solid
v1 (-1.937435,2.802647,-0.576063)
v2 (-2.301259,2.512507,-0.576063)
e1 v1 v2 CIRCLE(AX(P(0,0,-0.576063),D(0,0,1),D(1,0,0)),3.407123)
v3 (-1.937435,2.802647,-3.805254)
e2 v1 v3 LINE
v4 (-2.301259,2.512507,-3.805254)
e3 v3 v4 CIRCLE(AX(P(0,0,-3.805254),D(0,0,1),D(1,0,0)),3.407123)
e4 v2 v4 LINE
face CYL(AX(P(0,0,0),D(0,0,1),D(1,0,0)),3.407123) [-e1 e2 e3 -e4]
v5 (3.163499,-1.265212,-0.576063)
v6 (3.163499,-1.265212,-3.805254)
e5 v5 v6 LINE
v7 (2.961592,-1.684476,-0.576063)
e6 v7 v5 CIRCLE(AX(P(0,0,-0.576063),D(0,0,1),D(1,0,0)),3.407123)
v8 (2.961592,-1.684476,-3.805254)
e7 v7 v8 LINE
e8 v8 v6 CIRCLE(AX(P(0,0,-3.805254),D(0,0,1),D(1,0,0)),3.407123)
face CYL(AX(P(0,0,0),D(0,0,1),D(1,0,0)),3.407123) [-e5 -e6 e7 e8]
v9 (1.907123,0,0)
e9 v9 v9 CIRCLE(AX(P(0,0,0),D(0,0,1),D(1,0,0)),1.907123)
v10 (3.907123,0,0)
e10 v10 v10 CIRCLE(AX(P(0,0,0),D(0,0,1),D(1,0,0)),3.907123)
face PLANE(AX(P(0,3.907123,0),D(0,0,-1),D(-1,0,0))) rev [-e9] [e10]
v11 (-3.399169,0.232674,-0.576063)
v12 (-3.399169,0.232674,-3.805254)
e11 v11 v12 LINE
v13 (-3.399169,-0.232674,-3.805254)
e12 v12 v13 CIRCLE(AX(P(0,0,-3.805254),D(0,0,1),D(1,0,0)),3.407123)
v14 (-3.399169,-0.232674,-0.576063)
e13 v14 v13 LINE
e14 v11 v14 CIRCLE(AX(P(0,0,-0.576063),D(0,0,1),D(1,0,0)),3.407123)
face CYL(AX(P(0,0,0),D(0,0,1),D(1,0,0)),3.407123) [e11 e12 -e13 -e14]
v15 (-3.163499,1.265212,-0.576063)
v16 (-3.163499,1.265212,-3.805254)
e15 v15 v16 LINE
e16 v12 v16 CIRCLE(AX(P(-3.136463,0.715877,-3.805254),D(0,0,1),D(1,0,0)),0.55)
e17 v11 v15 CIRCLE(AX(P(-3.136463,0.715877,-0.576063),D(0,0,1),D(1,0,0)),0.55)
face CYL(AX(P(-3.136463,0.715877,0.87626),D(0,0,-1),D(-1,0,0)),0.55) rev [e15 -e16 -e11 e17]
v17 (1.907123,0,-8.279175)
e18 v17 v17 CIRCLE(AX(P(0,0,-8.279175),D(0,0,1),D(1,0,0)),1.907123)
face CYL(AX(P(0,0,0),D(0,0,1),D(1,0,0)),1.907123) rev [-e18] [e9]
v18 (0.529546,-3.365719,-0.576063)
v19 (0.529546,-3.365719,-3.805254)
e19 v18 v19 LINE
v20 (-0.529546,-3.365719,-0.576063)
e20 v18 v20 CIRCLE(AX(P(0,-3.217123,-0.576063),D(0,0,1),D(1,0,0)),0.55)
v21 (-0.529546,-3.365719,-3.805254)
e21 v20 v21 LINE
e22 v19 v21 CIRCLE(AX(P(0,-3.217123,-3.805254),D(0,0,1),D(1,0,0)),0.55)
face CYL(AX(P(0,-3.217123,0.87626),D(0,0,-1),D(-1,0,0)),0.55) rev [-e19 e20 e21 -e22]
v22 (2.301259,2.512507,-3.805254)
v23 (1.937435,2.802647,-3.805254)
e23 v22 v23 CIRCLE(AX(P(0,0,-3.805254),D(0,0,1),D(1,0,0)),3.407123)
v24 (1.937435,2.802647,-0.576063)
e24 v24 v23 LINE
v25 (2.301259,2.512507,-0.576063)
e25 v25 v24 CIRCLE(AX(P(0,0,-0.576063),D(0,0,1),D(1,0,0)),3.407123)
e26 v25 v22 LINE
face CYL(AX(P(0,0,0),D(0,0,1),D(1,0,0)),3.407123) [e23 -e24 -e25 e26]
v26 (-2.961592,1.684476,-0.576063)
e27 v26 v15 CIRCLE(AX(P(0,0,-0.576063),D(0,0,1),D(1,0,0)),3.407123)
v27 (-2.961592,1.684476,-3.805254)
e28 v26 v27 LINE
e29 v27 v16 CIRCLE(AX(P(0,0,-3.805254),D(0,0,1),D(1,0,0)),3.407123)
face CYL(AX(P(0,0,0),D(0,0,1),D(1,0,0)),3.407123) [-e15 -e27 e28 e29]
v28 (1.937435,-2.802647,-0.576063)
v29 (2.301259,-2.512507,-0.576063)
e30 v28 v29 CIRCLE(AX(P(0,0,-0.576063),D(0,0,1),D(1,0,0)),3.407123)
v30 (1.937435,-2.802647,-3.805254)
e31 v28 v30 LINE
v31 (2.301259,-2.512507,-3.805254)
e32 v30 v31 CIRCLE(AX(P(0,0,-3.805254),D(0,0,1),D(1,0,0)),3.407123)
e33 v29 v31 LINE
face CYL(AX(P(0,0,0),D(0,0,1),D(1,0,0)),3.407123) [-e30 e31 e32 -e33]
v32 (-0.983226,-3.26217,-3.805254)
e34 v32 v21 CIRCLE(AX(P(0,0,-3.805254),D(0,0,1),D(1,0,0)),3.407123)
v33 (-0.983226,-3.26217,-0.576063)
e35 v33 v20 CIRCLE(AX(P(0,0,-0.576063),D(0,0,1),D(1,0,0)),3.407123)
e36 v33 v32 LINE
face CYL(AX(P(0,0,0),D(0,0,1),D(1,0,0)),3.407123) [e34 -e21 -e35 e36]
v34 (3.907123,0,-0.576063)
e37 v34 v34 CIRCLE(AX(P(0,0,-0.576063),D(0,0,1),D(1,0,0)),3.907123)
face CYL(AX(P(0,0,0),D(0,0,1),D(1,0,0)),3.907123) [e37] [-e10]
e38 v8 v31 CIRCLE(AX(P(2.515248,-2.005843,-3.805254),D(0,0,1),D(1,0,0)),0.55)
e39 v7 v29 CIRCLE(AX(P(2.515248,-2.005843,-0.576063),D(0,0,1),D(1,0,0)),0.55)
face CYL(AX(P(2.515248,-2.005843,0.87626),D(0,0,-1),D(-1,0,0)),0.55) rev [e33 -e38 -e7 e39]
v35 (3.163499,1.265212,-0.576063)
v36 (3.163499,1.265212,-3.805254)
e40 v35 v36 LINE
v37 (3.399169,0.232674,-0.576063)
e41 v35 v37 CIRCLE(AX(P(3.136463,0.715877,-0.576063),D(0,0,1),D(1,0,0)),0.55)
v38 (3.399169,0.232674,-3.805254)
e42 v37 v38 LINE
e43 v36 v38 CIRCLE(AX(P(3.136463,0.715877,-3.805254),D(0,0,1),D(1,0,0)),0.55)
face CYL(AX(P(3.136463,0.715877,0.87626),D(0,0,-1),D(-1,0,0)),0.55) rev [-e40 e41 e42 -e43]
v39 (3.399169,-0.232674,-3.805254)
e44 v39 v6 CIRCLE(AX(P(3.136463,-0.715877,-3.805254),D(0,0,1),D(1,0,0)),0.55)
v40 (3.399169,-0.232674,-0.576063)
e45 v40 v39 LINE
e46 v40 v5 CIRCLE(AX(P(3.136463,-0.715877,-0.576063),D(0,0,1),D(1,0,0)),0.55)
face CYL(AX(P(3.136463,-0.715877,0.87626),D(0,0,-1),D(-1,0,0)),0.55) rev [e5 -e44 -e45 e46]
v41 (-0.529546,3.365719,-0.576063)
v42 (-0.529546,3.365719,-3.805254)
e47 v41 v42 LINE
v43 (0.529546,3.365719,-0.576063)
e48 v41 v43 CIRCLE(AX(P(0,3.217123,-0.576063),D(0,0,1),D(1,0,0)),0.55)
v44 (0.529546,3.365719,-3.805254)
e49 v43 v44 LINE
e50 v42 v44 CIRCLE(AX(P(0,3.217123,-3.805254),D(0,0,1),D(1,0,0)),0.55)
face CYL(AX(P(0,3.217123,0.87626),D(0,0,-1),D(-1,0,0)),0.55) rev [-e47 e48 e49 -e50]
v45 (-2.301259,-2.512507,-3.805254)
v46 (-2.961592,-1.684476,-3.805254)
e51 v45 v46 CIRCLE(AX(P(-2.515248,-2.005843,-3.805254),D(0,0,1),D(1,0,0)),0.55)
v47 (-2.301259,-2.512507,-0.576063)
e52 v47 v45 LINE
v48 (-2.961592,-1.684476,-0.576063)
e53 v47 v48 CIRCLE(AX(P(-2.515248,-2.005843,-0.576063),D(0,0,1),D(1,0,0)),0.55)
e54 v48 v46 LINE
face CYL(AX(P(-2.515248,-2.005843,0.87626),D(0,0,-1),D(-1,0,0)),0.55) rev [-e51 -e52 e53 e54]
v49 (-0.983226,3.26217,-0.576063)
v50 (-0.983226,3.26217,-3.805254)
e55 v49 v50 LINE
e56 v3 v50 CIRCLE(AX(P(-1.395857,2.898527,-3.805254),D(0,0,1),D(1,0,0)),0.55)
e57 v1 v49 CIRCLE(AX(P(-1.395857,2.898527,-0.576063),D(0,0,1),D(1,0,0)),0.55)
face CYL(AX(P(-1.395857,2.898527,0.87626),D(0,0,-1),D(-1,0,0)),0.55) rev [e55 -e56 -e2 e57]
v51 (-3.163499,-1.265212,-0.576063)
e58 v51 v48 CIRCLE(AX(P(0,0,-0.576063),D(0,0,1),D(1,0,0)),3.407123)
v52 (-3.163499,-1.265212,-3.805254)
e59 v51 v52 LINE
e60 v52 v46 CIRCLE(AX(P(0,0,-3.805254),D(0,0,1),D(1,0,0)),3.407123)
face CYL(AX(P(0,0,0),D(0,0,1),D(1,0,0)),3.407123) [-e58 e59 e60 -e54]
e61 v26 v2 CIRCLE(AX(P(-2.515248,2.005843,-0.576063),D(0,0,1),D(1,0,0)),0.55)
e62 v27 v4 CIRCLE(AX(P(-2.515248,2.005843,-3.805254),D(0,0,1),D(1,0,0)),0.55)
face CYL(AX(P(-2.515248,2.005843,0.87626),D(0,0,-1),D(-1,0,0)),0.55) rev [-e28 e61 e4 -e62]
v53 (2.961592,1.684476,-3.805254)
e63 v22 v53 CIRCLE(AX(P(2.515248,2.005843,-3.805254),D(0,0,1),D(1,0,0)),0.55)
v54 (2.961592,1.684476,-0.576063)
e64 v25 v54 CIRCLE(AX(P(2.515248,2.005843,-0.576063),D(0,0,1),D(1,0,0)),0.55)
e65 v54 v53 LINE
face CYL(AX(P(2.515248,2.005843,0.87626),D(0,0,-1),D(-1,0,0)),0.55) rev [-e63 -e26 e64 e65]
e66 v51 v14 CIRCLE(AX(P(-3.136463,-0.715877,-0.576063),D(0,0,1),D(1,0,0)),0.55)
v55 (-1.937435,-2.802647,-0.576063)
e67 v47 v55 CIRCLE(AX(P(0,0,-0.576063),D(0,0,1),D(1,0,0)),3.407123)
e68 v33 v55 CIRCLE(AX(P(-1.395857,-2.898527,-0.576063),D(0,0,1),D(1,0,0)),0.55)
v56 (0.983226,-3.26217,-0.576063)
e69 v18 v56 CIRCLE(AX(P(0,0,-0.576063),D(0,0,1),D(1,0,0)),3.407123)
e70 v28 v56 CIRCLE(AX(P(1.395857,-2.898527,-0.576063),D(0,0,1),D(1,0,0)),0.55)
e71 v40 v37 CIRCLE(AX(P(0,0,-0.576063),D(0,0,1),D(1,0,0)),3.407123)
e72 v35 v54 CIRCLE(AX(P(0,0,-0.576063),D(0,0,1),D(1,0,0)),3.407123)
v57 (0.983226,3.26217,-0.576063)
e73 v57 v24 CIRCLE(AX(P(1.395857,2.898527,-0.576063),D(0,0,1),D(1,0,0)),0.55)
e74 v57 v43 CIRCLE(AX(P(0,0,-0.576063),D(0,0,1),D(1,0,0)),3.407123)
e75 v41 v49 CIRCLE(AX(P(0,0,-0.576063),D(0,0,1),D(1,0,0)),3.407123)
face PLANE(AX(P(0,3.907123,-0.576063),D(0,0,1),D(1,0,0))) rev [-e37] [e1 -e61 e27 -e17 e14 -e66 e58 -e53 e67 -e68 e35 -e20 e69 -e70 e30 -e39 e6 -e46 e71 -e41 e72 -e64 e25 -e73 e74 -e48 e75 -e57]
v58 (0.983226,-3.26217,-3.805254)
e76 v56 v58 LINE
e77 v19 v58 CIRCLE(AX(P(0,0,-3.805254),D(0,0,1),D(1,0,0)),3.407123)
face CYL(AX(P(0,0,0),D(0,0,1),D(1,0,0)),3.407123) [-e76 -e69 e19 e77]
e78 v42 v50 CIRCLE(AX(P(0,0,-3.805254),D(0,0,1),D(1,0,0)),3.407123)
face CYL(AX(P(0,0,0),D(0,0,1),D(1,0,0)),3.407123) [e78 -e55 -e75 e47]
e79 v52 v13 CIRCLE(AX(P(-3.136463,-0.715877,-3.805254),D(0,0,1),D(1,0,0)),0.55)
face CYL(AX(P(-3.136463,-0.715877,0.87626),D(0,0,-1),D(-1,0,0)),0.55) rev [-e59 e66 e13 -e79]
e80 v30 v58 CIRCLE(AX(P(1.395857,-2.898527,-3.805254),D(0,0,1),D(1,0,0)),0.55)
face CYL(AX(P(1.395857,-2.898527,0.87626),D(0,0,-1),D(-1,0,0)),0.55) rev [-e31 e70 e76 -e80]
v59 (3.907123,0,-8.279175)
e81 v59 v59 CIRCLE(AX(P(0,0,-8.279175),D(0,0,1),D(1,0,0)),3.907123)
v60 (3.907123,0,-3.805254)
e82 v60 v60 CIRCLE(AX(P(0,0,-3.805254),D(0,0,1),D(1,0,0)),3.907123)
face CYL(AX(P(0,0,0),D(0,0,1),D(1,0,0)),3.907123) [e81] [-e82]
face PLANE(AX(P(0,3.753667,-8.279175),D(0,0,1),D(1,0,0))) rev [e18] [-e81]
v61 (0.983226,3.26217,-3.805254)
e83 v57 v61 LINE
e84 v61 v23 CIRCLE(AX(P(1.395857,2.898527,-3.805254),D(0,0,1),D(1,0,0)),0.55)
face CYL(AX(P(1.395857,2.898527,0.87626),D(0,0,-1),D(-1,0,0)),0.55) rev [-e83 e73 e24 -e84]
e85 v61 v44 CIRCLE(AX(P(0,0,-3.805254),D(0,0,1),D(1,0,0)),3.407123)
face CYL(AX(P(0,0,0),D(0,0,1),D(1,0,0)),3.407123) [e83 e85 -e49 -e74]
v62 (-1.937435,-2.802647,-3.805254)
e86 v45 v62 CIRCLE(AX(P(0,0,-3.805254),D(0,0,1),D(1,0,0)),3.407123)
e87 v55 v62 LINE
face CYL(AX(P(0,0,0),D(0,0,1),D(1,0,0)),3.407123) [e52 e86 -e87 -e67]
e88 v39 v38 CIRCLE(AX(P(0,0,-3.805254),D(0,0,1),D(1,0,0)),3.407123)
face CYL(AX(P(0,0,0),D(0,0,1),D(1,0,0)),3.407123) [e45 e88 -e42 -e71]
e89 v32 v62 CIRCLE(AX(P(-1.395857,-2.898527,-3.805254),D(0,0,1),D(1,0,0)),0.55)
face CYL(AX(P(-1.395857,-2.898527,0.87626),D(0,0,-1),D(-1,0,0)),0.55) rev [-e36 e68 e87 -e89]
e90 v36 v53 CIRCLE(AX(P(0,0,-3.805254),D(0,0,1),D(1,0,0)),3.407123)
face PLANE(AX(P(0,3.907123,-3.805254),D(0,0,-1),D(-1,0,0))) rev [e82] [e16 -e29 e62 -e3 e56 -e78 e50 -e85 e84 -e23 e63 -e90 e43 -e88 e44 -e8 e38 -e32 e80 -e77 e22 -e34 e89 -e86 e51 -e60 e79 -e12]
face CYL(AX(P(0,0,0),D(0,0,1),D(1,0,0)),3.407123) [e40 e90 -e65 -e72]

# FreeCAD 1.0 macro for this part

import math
import FreeCAD as App
import Part
import Sketcher
from FreeCAD import Vector
Q = App.Units.Quantity

doc = App.newDocument("Part")
body = doc.addObject("PartDesign::Body", "Body")

sketch1 = body.newObject("Sketcher::SketchObject", "Sketch")
sketch1.AttachmentSupport = (doc.getObject("YZ_Plane"), [""])
sketch1.MapMode = "FlatFace"
sketch1.addGeometry([
    Part.LineSegment(Vector(3.9, -3.8, 0), Vector(3.4, -3.8, 0)),
    Part.LineSegment(Vector(3.4, -3.8, 0), Vector(3.4, -0.6, 0)),
    Part.LineSegment(Vector(3.4, -0.6, 0), Vector(3.9, -0.6, 0)),
    Part.LineSegment(Vector(3.9, -0.6, 0), Vector(3.9, 0, 0)),
    Part.LineSegment(Vector(3.9, 0, 0), Vector(1.9, 0, 0)),
    Part.LineSegment(Vector(1.9, 0, 0), Vector(1.9, -8.3, 0)),
    Part.LineSegment(Vector(1.9, -8.3, 0), Vector(3.9, -8.3, 0)),
    Part.LineSegment(Vector(3.9, -8.3, 0), Vector(3.9, -3.8, 0)),
], False)
sketch1.addConstraint([
    Sketcher.Constraint("Coincident", 0, 2, 1, 1),
    Sketcher.Constraint("Coincident", 1, 2, 2, 1),
    Sketcher.Constraint("Coincident", 2, 2, 3, 1),
    Sketcher.Constraint("Coincident", 3, 2, 4, 1),
    Sketcher.Constraint("Coincident", 4, 2, 5, 1),
    Sketcher.Constraint("Coincident", 5, 2, 6, 1),
    Sketcher.Constraint("Coincident", 6, 2, 7, 1),
    Sketcher.Constraint("Coincident", 7, 2, 0, 1),
    Sketcher.Constraint("Horizontal", 0),
    Sketcher.Constraint("Vertical", 1),
    Sketcher.Constraint("Horizontal", 2),
    Sketcher.Constraint("Vertical", 3),
    Sketcher.Constraint("Horizontal", 4),
    Sketcher.Constraint("Vertical", 5),
    Sketcher.Constraint("Horizontal", 6),
    Sketcher.Constraint("Vertical", 7),
    Sketcher.Constraint("PointOnObject", 3, 2, -1),
    Sketcher.Constraint("Vertical", 3, 2, 6, 2),
    Sketcher.Constraint("DistanceX", 4, 2, 4, 1, Q("2 mm")),
    Sketcher.Constraint("DistanceX", 0, 2, 0, 1, Q("0.5 mm")),
    Sketcher.Constraint("DistanceY", 1, 1, 1, 2, Q("3.229192 mm")),
    Sketcher.Constraint("DistanceY", 7, 1, 7, 2, Q("4.47392 mm")),
    Sketcher.Constraint("DistanceY", 3, 1, 3, 2, Q("0.576063 mm")),
    Sketcher.Constraint("DistanceX", -1, 1, 0, 2, Q("3.407123 mm")),
])
revolution = body.newObject("PartDesign::Revolution", "Revolution")
revolution.Profile = sketch1
revolution.ReferenceAxis = (sketch1, ["V_Axis"])
revolution.Angle = 360

sketch2 = body.newObject("Sketcher::SketchObject", "Sketch001")
sketch2.AttachmentSupport = (doc.getObject("XY_Plane"), [""])
sketch2.MapMode = "FlatFace"
sketch2.AttachmentOffset = App.Placement(Vector(0, 0, -0.576063), App.Rotation())
sketch2.addGeometry([
    Part.ArcOfCircle(Part.Circle(Vector(0, 0, 0), Vector(0, 0, 1), 3.4), math.radians(132.49), math.radians(150.37)),
    Part.ArcOfCircle(Part.Circle(Vector(-2.5, 2, 0), Vector(0, 0, 1), 0.6), math.radians(-144), math.radians(67)),
    Part.ArcOfCircle(Part.Circle(Vector(0, 3.2, 0), Vector(0, 0, 1), 0.6), math.radians(164), math.radians(376)),
    Part.ArcOfCircle(Part.Circle(Vector(0, 0, 0), Vector(0, 0, 1), 3.4), math.radians(81.06), math.radians(98.94)),
    Part.ArcOfCircle(Part.Circle(Vector(1.4, 2.9, 0), Vector(0, 0, 1), 0.6), math.radians(139), math.radians(350)),
    Part.ArcOfCircle(Part.Circle(Vector(0, 0, 0), Vector(0, 0, 1), 3.4), math.radians(55.34), math.radians(73.23)),
    Part.ArcOfCircle(Part.Circle(Vector(2.5, 2, 0), Vector(0, 0, 1), 0.6), math.radians(113), math.radians(324)),
    Part.ArcOfCircle(Part.Circle(Vector(0, 0, 0), Vector(0, 0, 1), 3.4), math.radians(29.63), math.radians(47.51)),
    Part.ArcOfCircle(Part.Circle(Vector(3.1, 0.7, 0), Vector(0, 0, 1), 0.6), math.radians(87), math.radians(299)),
    Part.ArcOfCircle(Part.Circle(Vector(0, 0, 0), Vector(0, 0, 1), 3.4), math.radians(3.92), math.radians(21.8)),
    Part.ArcOfCircle(Part.Circle(Vector(3.1, -0.7, 0), Vector(0, 0, 1), 0.6), math.radians(61), math.radians(273)),
    Part.ArcOfCircle(Part.Circle(Vector(0, 0, 0), Vector(0, 0, 1), 3.4), math.radians(-21.8), math.radians(-3.92)),
    Part.ArcOfCircle(Part.Circle(Vector(2.5, -2, 0), Vector(0, 0, 1), 0.6), math.radians(36), math.radians(247)),
    Part.ArcOfCircle(Part.Circle(Vector(0, 0, 0), Vector(0, 0, 1), 3.4), math.radians(-47.51), math.radians(-29.63)),
    Part.ArcOfCircle(Part.Circle(Vector(1.4, -2.9, 0), Vector(0, 0, 1), 0.6), math.radians(10), math.radians(221)),
    Part.ArcOfCircle(Part.Circle(Vector(0, 0, 0), Vector(0, 0, 1), 3.4), math.radians(-73.23), math.radians(-55.34)),
    Part.ArcOfCircle(Part.Circle(Vector(0, -3.2, 0), Vector(0, 0, 1), 0.6), math.radians(-16), math.radians(196)),
    Part.ArcOfCircle(Part.Circle(Vector(0, 0, 0), Vector(0, 0, 1), 3.4), math.radians(-98.94), math.radians(-81.06)),
    Part.ArcOfCircle(Part.Circle(Vector(-1.4, -2.9, 0), Vector(0, 0, 1), 0.6), math.radians(-41), math.radians(170)),
    Part.ArcOfCircle(Part.Circle(Vector(0, 0, 0), Vector(0, 0, 1), 3.4), math.radians(-124.66), math.radians(-106.77)),
    Part.ArcOfCircle(Part.Circle(Vector(-2.5, -2, 0), Vector(0, 0, 1), 0.6), math.radians(-67), math.radians(144)),
    Part.ArcOfCircle(Part.Circle(Vector(0, 0, 0), Vector(0, 0, 1), 3.4), math.radians(-150.37), math.radians(-132.49)),
    Part.ArcOfCircle(Part.Circle(Vector(-3.1, -0.7, 0), Vector(0, 0, 1), 0.6), math.radians(-93), math.radians(119)),
    Part.ArcOfCircle(Part.Circle(Vector(0, 0, 0), Vector(0, 0, 1), 3.4), math.radians(-176.08), math.radians(-158.2)),
    Part.ArcOfCircle(Part.Circle(Vector(-3.1, 0.7, 0), Vector(0, 0, 1), 0.6), math.radians(-119), math.radians(93)),
    Part.ArcOfCircle(Part.Circle(Vector(0, 0, 0), Vector(0, 0, 1), 3.4), math.radians(158.2), math.radians(176.08)),
    Part.ArcOfCircle(Part.Circle(Vector(-1.4, 2.9, 0), Vector(0, 0, 1), 0.6), math.radians(-170), math.radians(41)),
    Part.ArcOfCircle(Part.Circle(Vector(0, 0, 0), Vector(0, 0, 1), 3.4), math.radians(106.77), math.radians(124.66)),
], False)
sketch2.addConstraint([
    Sketcher.Constraint("Coincident", 0, 1, 1, 2),
    Sketcher.Constraint("Coincident", 1, 1, 0, 2),
    Sketcher.Constraint("Coincident", 2, 1, 3, 2),
    Sketcher.Constraint("Coincident", 3, 1, 2, 2),
    Sketcher.Constraint("Coincident", 4, 1, 5, 2),
    Sketcher.Constraint("Coincident", 5, 1, 4, 2),
    Sketcher.Constraint("Coincident", 6, 1, 7, 2),
    Sketcher.Constraint("Coincident", 7, 1, 6, 2),
    Sketcher.Constraint("Coincident", 8, 1, 9, 2),
    Sketcher.Constraint("Coincident", 9, 1, 8, 2),
    Sketcher.Constraint("Coincident", 10, 1, 11, 2),
    Sketcher.Constraint("Coincident", 11, 1, 10, 2),
    Sketcher.Constraint("Coincident", 12, 1, 13, 2),
    Sketcher.Constraint("Coincident", 13, 1, 12, 2),
    Sketcher.Constraint("Coincident", 14, 1, 15, 2),
    Sketcher.Constraint("Coincident", 15, 1, 14, 2),
    Sketcher.Constraint("Coincident", 16, 1, 17, 2),
    Sketcher.Constraint("Coincident", 17, 1, 16, 2),
    Sketcher.Constraint("Coincident", 18, 1, 19, 2),
    Sketcher.Constraint("Coincident", 19, 1, 18, 2),
    Sketcher.Constraint("Coincident", 20, 1, 21, 2),
    Sketcher.Constraint("Coincident", 21, 1, 20, 2),
    Sketcher.Constraint("Coincident", 22, 1, 23, 2),
    Sketcher.Constraint("Coincident", 23, 1, 22, 2),
    Sketcher.Constraint("Coincident", 24, 1, 25, 2),
    Sketcher.Constraint("Coincident", 25, 1, 24, 2),
    Sketcher.Constraint("Coincident", 26, 1, 27, 2),
    Sketcher.Constraint("Coincident", 27, 1, 26, 2),
    Sketcher.Constraint("Coincident", 0, 3, -1, 1),
    Sketcher.Constraint("Coincident", 3, 3, -1, 1),
    Sketcher.Constraint("Coincident", 5, 3, -1, 1),
    Sketcher.Constraint("Coincident", 7, 3, -1, 1),
    Sketcher.Constraint("Coincident", 9, 3, -1, 1),
    Sketcher.Constraint("Coincident", 11, 3, -1, 1),
    Sketcher.Constraint("Coincident", 13, 3, -1, 1),
    Sketcher.Constraint("Coincident", 15, 3, -1, 1),
    Sketcher.Constraint("Coincident", 17, 3, -1, 1),
    Sketcher.Constraint("Coincident", 19, 3, -1, 1),
    Sketcher.Constraint("Coincident", 21, 3, -1, 1),
    Sketcher.Constraint("Coincident", 23, 3, -1, 1),
    Sketcher.Constraint("Coincident", 25, 3, -1, 1),
    Sketcher.Constraint("Coincident", 27, 3, -1, 1),
    Sketcher.Constraint("Equal", 1, 2),
    Sketcher.Constraint("Equal", 0, 3),
    Sketcher.Constraint("Equal", 2, 4),
    Sketcher.Constraint("Equal", 3, 5),
    Sketcher.Constraint("Equal", 4, 6),
    Sketcher.Constraint("Equal", 5, 7),
    Sketcher.Constraint("Equal", 6, 8),
    Sketcher.Constraint("Equal", 7, 9),
    Sketcher.Constraint("Equal", 8, 10),
    Sketcher.Constraint("Equal", 9, 11),
    Sketcher.Constraint("Equal", 10, 12),
    Sketcher.Constraint("Equal", 11, 13),
    Sketcher.Constraint("Equal", 12, 14),
    Sketcher.Constraint("Equal", 13, 15),
    Sketcher.Constraint("Equal", 14, 16),
    Sketcher.Constraint("Equal", 15, 17),
    Sketcher.Constraint("Equal", 16, 18),
    Sketcher.Constraint("Equal", 17, 19),
    Sketcher.Constraint("Equal", 18, 20),
    Sketcher.Constraint("Equal", 19, 21),
    Sketcher.Constraint("Equal", 20, 22),
    Sketcher.Constraint("Equal", 21, 23),
    Sketcher.Constraint("Equal", 22, 24),
    Sketcher.Constraint("Equal", 23, 25),
    Sketcher.Constraint("Equal", 24, 26),
    Sketcher.Constraint("Equal", 25, 27),
    Sketcher.Constraint("Symmetric", 1, 3, 12, 3, -1, 1),
    Sketcher.Constraint("Symmetric", 2, 3, 16, 3, -1, 1),
    Sketcher.Constraint("Symmetric", 4, 3, 18, 3, -1, 1),
    Sketcher.Constraint("Symmetric", 6, 3, 20, 3, -1, 1),
    Sketcher.Constraint("Symmetric", 8, 3, 22, 3, -1, 1),
    Sketcher.Constraint("Symmetric", 10, 3, 24, 3, -1, 1),
    Sketcher.Constraint("Symmetric", 14, 3, 26, 3, -1, 1),
    Sketcher.Constraint("Symmetric", 1, 3, 6, 3, -2),
    Sketcher.Constraint("Symmetric", 14, 3, 18, 3, -2),
    Sketcher.Constraint("Symmetric", 10, 3, 22, 3, -2),
    Sketcher.Constraint("PointOnObject", 2, 3, -2),
    Sketcher.Constraint("Radius", 1, Q("0.55 mm")),
    Sketcher.Constraint("Radius", 0, Q("3.407123 mm")),
    Sketcher.Constraint("DistanceX", -1, 1, 8, 1, Q("3.163499 mm")),
    Sketcher.Constraint("DistanceX", 0, 1, 26, 3, Q("0.905401 mm")),
    Sketcher.Constraint("DistanceY", 24, 3, 1, 1, Q("0.968599 mm")),
    Sketcher.Constraint("DistanceX", 1, 3, 2, 1, Q("1.985702 mm")),
    Sketcher.Constraint("DistanceX", 0, 1, -1, 1, Q("2.301259 mm")),
    Sketcher.Constraint("DistanceX", 1, 1, -1, 1, Q("2.961592 mm")),
    Sketcher.Constraint("DistanceY", -1, 1, 4, 1, Q("3.26217 mm")),
])
pocket1 = body.newObject("PartDesign::Pocket", "Pocket")
pocket1.Profile = sketch2
pocket1.Length = 3.229192

doc.recompute()
